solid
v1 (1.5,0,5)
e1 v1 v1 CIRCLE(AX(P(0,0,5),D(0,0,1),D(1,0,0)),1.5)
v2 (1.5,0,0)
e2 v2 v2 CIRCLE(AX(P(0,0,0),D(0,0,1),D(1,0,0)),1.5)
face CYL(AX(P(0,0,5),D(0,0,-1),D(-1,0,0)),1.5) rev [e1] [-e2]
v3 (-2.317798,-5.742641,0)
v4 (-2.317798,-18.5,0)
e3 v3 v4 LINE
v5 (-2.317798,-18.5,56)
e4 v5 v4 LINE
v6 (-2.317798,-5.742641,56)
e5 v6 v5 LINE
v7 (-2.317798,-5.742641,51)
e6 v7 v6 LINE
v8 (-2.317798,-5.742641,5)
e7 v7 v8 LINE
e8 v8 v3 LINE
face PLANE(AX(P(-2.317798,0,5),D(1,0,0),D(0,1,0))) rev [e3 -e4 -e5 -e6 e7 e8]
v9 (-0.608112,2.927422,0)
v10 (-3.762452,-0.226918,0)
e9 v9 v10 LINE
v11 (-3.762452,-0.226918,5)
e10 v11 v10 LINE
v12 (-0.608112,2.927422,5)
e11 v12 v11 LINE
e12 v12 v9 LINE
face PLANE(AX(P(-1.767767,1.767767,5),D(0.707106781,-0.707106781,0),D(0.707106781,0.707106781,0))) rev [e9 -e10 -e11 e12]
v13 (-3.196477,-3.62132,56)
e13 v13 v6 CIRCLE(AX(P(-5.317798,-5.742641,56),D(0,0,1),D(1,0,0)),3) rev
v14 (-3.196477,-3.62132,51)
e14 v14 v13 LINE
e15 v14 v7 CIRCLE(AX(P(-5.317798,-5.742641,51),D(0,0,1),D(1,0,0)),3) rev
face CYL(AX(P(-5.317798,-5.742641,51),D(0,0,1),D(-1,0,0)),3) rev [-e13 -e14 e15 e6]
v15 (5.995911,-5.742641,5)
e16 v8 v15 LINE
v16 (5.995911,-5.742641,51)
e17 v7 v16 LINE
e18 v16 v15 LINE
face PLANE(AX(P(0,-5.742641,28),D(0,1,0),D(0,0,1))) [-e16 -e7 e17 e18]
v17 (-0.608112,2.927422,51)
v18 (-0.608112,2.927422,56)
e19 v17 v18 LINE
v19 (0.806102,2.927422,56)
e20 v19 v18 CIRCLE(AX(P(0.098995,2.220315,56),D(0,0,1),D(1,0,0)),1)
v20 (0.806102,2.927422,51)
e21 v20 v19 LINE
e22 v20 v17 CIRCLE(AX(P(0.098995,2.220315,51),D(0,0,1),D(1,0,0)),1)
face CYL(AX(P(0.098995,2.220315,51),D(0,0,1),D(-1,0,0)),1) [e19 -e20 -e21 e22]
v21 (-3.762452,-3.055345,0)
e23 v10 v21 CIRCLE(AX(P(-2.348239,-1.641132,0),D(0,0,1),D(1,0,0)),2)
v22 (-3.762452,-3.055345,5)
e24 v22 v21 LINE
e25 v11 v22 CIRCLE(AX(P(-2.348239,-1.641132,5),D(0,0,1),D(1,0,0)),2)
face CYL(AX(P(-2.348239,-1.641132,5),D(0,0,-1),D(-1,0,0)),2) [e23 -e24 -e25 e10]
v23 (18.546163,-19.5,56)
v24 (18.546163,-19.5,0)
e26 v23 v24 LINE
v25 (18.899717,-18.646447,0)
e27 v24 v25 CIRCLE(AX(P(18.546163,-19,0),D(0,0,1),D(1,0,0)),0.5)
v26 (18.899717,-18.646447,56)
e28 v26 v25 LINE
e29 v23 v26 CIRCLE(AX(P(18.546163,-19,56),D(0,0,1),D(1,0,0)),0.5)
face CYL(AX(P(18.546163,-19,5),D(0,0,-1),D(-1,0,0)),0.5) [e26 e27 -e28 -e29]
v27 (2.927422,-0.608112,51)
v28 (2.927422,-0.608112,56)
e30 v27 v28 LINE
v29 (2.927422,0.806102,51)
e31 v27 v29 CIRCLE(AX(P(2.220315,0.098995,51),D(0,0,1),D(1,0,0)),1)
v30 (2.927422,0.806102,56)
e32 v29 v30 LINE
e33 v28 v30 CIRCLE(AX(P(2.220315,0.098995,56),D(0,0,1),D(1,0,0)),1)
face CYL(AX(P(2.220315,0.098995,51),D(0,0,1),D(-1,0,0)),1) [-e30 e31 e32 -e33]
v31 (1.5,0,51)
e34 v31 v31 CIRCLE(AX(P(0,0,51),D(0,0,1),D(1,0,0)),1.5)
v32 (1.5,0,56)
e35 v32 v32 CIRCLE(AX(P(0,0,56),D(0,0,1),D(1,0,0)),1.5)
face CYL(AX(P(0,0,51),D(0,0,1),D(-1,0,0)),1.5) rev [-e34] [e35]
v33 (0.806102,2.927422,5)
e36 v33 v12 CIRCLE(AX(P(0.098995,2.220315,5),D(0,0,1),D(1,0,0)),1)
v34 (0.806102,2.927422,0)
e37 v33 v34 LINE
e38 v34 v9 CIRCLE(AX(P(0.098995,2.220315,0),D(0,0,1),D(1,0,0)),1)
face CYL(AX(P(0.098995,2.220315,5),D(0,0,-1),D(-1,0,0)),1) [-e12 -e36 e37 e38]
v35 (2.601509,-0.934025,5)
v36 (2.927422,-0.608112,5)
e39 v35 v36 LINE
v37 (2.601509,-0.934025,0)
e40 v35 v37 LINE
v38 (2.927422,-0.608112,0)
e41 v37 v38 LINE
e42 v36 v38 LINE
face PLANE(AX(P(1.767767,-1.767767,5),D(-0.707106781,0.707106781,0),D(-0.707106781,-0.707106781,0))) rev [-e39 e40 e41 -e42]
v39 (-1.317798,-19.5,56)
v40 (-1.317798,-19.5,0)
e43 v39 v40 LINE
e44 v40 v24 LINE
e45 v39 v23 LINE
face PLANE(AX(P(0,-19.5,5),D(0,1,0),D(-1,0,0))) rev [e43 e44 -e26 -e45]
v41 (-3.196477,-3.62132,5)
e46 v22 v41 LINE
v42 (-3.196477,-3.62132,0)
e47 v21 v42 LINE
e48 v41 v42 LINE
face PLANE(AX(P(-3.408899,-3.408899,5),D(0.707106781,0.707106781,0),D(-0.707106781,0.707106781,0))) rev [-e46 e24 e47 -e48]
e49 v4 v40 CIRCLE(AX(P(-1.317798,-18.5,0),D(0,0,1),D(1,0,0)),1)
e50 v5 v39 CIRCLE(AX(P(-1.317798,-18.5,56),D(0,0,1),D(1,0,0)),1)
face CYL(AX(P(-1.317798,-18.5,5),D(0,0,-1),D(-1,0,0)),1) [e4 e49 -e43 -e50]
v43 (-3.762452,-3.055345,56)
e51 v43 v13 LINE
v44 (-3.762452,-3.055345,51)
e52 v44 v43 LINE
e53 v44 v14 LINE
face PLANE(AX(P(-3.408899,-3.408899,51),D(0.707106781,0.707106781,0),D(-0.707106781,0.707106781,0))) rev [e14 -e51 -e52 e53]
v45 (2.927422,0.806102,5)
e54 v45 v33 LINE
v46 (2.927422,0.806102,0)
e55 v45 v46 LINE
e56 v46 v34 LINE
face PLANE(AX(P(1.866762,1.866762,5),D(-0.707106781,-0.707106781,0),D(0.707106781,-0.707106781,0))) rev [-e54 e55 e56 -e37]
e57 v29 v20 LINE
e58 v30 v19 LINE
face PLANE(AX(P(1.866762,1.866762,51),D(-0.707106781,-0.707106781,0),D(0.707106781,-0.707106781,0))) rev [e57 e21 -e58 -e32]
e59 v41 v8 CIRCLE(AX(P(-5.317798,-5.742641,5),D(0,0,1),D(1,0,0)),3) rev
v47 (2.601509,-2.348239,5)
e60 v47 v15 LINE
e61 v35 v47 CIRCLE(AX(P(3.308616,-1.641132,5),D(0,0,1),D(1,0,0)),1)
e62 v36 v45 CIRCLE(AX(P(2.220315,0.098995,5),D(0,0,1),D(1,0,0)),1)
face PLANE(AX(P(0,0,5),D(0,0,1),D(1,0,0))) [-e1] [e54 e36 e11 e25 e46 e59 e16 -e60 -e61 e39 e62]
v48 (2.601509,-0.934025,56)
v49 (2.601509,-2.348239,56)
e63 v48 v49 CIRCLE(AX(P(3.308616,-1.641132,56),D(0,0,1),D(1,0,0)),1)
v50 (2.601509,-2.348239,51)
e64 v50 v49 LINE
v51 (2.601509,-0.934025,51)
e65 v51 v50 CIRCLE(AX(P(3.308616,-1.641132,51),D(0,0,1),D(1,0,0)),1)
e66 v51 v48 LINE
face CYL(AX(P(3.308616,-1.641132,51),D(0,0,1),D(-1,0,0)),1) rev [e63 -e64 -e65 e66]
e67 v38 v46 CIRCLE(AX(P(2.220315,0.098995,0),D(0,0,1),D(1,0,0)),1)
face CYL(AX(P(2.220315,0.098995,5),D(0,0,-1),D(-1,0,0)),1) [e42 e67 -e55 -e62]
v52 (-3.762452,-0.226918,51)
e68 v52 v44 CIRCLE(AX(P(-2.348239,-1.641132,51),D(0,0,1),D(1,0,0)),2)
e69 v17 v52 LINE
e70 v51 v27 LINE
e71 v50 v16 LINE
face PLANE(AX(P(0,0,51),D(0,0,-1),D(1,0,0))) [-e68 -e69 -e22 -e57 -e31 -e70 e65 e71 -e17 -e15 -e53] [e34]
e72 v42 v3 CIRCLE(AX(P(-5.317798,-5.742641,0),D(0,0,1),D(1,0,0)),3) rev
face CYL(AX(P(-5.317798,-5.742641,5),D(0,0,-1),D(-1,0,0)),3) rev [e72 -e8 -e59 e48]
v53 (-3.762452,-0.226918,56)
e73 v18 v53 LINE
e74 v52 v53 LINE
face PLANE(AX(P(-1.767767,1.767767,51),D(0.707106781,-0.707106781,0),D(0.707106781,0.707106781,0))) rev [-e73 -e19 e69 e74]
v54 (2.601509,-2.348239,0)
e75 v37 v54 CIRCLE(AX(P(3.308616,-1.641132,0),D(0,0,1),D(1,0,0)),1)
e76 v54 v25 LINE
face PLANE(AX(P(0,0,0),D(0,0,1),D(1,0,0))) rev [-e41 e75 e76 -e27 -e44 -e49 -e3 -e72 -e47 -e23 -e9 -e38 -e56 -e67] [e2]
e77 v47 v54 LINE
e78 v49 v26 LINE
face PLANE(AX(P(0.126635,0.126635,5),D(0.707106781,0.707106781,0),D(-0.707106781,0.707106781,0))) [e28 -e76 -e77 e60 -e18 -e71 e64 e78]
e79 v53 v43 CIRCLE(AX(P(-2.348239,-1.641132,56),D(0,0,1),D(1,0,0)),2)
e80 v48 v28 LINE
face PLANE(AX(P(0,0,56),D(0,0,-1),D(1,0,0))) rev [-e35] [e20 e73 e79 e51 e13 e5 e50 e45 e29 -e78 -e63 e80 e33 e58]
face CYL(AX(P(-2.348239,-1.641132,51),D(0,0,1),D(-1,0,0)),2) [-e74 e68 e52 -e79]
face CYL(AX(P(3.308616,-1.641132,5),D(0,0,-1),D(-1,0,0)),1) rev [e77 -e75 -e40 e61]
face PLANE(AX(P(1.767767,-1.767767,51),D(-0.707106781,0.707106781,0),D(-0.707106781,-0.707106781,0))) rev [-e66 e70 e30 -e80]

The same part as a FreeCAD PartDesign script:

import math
import FreeCAD as App
import Part
import Sketcher
Q = App.Units.Quantity

doc = App.newDocument("Part")
params = doc.addObject("Spreadsheet::Sheet", "Params")
for row, (alias, value) in enumerate([
    ("sketch1_diameter", "3 mm"),
    ("sketch1_radius", "3 mm"),
    ("sketch1_radius2", "1 mm"),
    ("sketch1_radius3", "2 mm"),
    ("sketch1_radius4", "0.5 mm"),
    ("pad1_length", "5 mm"),
    ("sketch2_radius", "1 mm"),
    ("sketch2_radius2", "0.5 mm"),
    ("pad2_length", "23 mm"),
], start=1):
    params.set(f"A{row}", alias)
    params.set(f"B{row}", "=" + value)
    params.setAlias(f"B{row}", alias)

body = doc.addObject("PartDesign::Body", "Body")

# Sketch on XY plane
sketch1 = body.newObject("Sketcher::SketchObject", "Sketch")
sketch1.AttachmentSupport = (doc.getObject("XY_Plane"), [""])
sketch1.MapMode = "FlatFace"
sketch1.addGeometry(Part.LineSegment(App.Vector(-3.76, -3.06, 0), App.Vector(-3.2, -3.62, 0)), False)
sketch1.addGeometry(Part.ArcOfCircle(Part.Circle(App.Vector(-5.32, -5.74, 0), App.Vector(0, 0, 1), 3), math.radians(0), math.radians(45)), False)
sketch1.addGeometry(Part.LineSegment(App.Vector(-2.32, -5.74, 0), App.Vector(-2.32, -18.5, 0)), False)
sketch1.addGeometry(Part.ArcOfCircle(Part.Circle(App.Vector(-1.32, -18.5, 0), App.Vector(0, 0, 1), 1), math.radians(-180), math.radians(-90)), False)
sketch1.addGeometry(Part.LineSegment(App.Vector(-1.32, -19.5, 0), App.Vector(18.55, -19.5, 0)), False)
sketch1.addGeometry(Part.ArcOfCircle(Part.Circle(App.Vector(18.55, -19, 0), App.Vector(0, 0, 1), 0.5), math.radians(-90), math.radians(45)), False)
sketch1.addGeometry(Part.LineSegment(App.Vector(18.9, -18.65, 0), App.Vector(2.6, -2.35, 0)), False)
sketch1.addGeometry(Part.ArcOfCircle(Part.Circle(App.Vector(3.31, -1.64, 0), App.Vector(0, 0, 1), 1), math.radians(135), math.radians(225)), False)
sketch1.addGeometry(Part.LineSegment(App.Vector(2.6, -0.93, 0), App.Vector(2.93, -0.61, 0)), False)
sketch1.addGeometry(Part.ArcOfCircle(Part.Circle(App.Vector(2.22, 0.1, 0), App.Vector(0, 0, 1), 1), math.radians(-45), math.radians(45)), False)
sketch1.addGeometry(Part.LineSegment(App.Vector(2.93, 0.81, 0), App.Vector(0.81, 2.93, 0)), False)
sketch1.addGeometry(Part.ArcOfCircle(Part.Circle(App.Vector(0.1, 2.22, 0), App.Vector(0, 0, 1), 1), math.radians(45), math.radians(135)), False)
sketch1.addGeometry(Part.LineSegment(App.Vector(-0.61, 2.93, 0), App.Vector(-3.76, -0.23, 0)), False)
sketch1.addGeometry(Part.ArcOfCircle(Part.Circle(App.Vector(-2.35, -1.64, 0), App.Vector(0, 0, 1), 2), math.radians(135), math.radians(225)), False)
sketch1.addGeometry(Part.Circle(App.Vector(0, 0, 0), App.Vector(0, 0, 1), 1.5), False)
sketch1.addConstraint(Sketcher.Constraint("Tangent", 0, 2, 1, 2))
sketch1.addConstraint(Sketcher.Constraint("Tangent", 1, 1, 2, 1))
sketch1.addConstraint(Sketcher.Constraint("Tangent", 2, 2, 3, 1))
sketch1.addConstraint(Sketcher.Constraint("Tangent", 3, 2, 4, 1))
sketch1.addConstraint(Sketcher.Constraint("Tangent", 4, 2, 5, 1))
sketch1.addConstraint(Sketcher.Constraint("Tangent", 5, 2, 6, 1))
sketch1.addConstraint(Sketcher.Constraint("Tangent", 6, 2, 7, 2))
sketch1.addConstraint(Sketcher.Constraint("Tangent", 7, 1, 8, 1))
sketch1.addConstraint(Sketcher.Constraint("Tangent", 8, 2, 9, 1))
sketch1.addConstraint(Sketcher.Constraint("Tangent", 9, 2, 10, 1))
sketch1.addConstraint(Sketcher.Constraint("Tangent", 10, 2, 11, 1))
sketch1.addConstraint(Sketcher.Constraint("Tangent", 11, 2, 12, 1))
sketch1.addConstraint(Sketcher.Constraint("Tangent", 12, 2, 13, 1))
sketch1.addConstraint(Sketcher.Constraint("Tangent", 13, 2, 0, 1))
sketch1.addConstraint(Sketcher.Constraint("Vertical", 2))
sketch1.addConstraint(Sketcher.Constraint("Horizontal", 4))
sketch1.addConstraint(Sketcher.Constraint("Coincident", 14, 3, -1, 1))
sketch1.addConstraint(Sketcher.Constraint("Equal", 3, 7))
sketch1.addConstraint(Sketcher.Constraint("Equal", 7, 9))
sketch1.addConstraint(Sketcher.Constraint("Equal", 9, 11))
sketch1.addConstraint(Sketcher.Constraint("Parallel", 0, 6))
sketch1.addConstraint(Sketcher.Constraint("Perpendicular", 6, 8))
sketch1.addConstraint(Sketcher.Constraint("Perpendicular", 8, 10))
sketch1.addConstraint(Sketcher.Constraint("Perpendicular", 10, 12))
sketch1.addConstraint(Sketcher.Constraint("Horizontal", 7, 3, 13, 3))
sketch1.addConstraint(Sketcher.Constraint("Horizontal", 10, 2, 11, 2))
sketch1.addConstraint(Sketcher.Constraint("Diameter", 14, Q("3 mm")))
sketch1.addConstraint(Sketcher.Constraint("Radius", 1, Q("3 mm")))
sketch1.addConstraint(Sketcher.Constraint("Radius", 3, Q("1 mm")))
sketch1.addConstraint(Sketcher.Constraint("Radius", 13, Q("2 mm")))
sketch1.addConstraint(Sketcher.Constraint("Radius", 5, Q("0.5 mm")))
sketch1.addConstraint(Sketcher.Constraint("Distance", 10, Q("3 mm")))
sketch1.addConstraint(Sketcher.Constraint("DistanceY", 5, 3, -1, 1, Q("19 mm")))
sketch1.addConstraint(Sketcher.Constraint("DistanceX", 4, 1, 4, 2, Q("19.863961 mm")))
sketch1.addConstraint(Sketcher.Constraint("DistanceY", -1, 1, 9, 2, Q("0.806102 mm")))
sketch1.addConstraint(Sketcher.Constraint("DistanceX", -1, 1, 10, 2, Q("0.806102 mm")))
sketch1.addConstraint(Sketcher.Constraint("DistanceX", 9, 3, 7, 3, Q("1.0883 mm")))
sketch1.setExpression("Constraints[26]", "Params.sketch1_diameter")
sketch1.setExpression("Constraints[27]", "Params.sketch1_radius")
sketch1.setExpression("Constraints[28]", "Params.sketch1_radius2")
sketch1.setExpression("Constraints[29]", "Params.sketch1_radius3")
sketch1.setExpression("Constraints[30]", "Params.sketch1_radius4")
pad1 = body.newObject("PartDesign::Pad", "Pad")
pad1.Profile = sketch1
pad1.setExpression("Length", "Params.pad1_length")

# Sketch on XY plane
sketch2 = body.newObject("Sketcher::SketchObject", "Sketch001")
sketch2.AttachmentSupport = (doc.getObject("XY_Plane"), [""])
sketch2.MapMode = "FlatFace"
sketch2.AttachmentOffset = App.Placement(App.Vector(0, 0, 5), App.Rotation())
sketch2.addGeometry(Part.LineSegment(App.Vector(18.9, -18.6, 0), App.Vector(6, -5.7, 0)), False)
sketch2.addGeometry(Part.LineSegment(App.Vector(6, -5.7, 0), App.Vector(-2.3, -5.7, 0)), False)
sketch2.addGeometry(Part.LineSegment(App.Vector(-2.3, -5.7, 0), App.Vector(-2.3, -18.5, 0)), False)
sketch2.addGeometry(Part.ArcOfCircle(Part.Circle(App.Vector(-1.3, -18.5, 0), App.Vector(0, 0, 1), 1), math.radians(-180), math.radians(-90)), False)
sketch2.addGeometry(Part.LineSegment(App.Vector(-1.3, -19.5, 0), App.Vector(18.5, -19.5, 0)), False)
sketch2.addGeometry(Part.ArcOfCircle(Part.Circle(App.Vector(18.5, -19, 0), App.Vector(0, 0, 1), 0.5), math.radians(-90), math.radians(45)), False)
sketch2.addConstraint(Sketcher.Constraint("Coincident", 0, 2, 1, 1))
sketch2.addConstraint(Sketcher.Constraint("Coincident", 1, 2, 2, 1))
sketch2.addConstraint(Sketcher.Constraint("Tangent", 2, 2, 3, 1))
sketch2.addConstraint(Sketcher.Constraint("Tangent", 3, 2, 4, 1))
sketch2.addConstraint(Sketcher.Constraint("Tangent", 4, 2, 5, 1))
sketch2.addConstraint(Sketcher.Constraint("Tangent", 5, 2, 0, 1))
sketch2.addConstraint(Sketcher.Constraint("Horizontal", 1))
sketch2.addConstraint(Sketcher.Constraint("Vertical", 2))
sketch2.addConstraint(Sketcher.Constraint("Horizontal", 4))
sketch2.addConstraint(Sketcher.Constraint("Radius", 3, Q("1 mm")))
sketch2.addConstraint(Sketcher.Constraint("Radius", 5, Q("0.5 mm")))
sketch2.addConstraint(Sketcher.Constraint("Angle", 0, Q("135 deg")))
sketch2.addConstraint(Sketcher.Constraint("DistanceY", 5, 3, -1, 1, Q("19 mm")))
sketch2.addConstraint(Sketcher.Constraint("DistanceX", 1, 2, 1, 1, Q("8.313708 mm")))
sketch2.addConstraint(Sketcher.Constraint("DistanceX", 4, 1, 4, 2, Q("19.863961 mm")))
sketch2.addConstraint(Sketcher.Constraint("DistanceX", -1, 1, 0, 2, Q("5.995911 mm")))
sketch2.setExpression("Constraints[9]", "Params.sketch2_radius")
sketch2.setExpression("Constraints[10]", "Params.sketch2_radius2")
pad2 = body.newObject("PartDesign::Pad", "Pad001")
pad2.Profile = sketch2
pad2.setExpression("Length", "Params.pad2_length")
doc.recompute()

datumplane = body.newObject("PartDesign::Plane", "DatumPlane")
datumplane.AttachmentSupport = (doc.getObject("XY_Plane"), [""])
datumplane.MapMode = "FlatFace"
datumplane.AttachmentOffset = App.Placement(App.Vector(0, 0, 28), App.Rotation())
mirrored = body.newObject("PartDesign::Mirrored", "Mirrored")
mirrored.Originals = [pad1, pad2]
mirrored.MirrorPlane = (datumplane, [""])
body.Tip = mirrored

doc.recompute()
